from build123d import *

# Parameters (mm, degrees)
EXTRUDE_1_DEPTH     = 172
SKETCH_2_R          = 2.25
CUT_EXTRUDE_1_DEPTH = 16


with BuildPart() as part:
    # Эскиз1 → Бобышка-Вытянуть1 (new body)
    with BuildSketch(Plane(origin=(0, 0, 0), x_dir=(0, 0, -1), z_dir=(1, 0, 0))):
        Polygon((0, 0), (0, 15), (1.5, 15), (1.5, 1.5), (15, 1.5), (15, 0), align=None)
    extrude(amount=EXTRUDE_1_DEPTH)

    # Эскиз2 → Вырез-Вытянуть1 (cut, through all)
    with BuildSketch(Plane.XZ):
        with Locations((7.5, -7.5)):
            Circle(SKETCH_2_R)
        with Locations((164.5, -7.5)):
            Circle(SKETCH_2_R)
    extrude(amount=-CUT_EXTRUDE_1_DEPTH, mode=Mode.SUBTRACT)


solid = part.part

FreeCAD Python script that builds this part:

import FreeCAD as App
import Part
import Sketcher
from FreeCAD import Vector


def add_polygon(sketch, points):
    """Adds a closed chain of lines whose ends are joined by coincident constraints."""
    first, n = sketch.GeometryCount, len(points)
    for a, b in zip(points, points[1:] + points[:1]):
        sketch.addGeometry(Part.LineSegment(App.Vector(*a, 0), App.Vector(*b, 0)), False)
    for i in range(n):
        sketch.addConstraint(Sketcher.Constraint("Coincident", first + i, 2, first + (i + 1) % n, 1))

doc = App.newDocument("Part")
params = doc.addObject("Spreadsheet::Sheet", "Params")
for row, (alias, value) in enumerate([
    ("sketch1_width", "15 mm"),
    ("sketch1_width2", "1.5 mm"),
    ("pad1_length", "172 mm"),
    ("sketch2_diameter", "4.5 mm"),
], start=1):
    params.set(f"A{row}", alias)
    params.set(f"B{row}", "=" + value)
    params.setAlias(f"B{row}", alias)

body = doc.addObject("PartDesign::Body", "Body")

# Sketch on YZ plane
sketch1 = doc.addObject("Sketcher::SketchObject", "Sketch")
body.addObject(sketch1)
sketch1.AttachmentSupport = (doc.YZ_Plane, [""])
sketch1.MapMode = "FlatFace"
add_polygon(sketch1, [(15, 0), (0, 0), (0, -15), (1.5, -15), (1.5, -1.5), (15, -1.5)])  # lines 0-5
sketch1.addConstraint([
    Sketcher.Constraint("Horizontal", 0),
    Sketcher.Constraint("Vertical", 1),
    Sketcher.Constraint("Horizontal", 2),
    Sketcher.Constraint("Vertical", 3),
    Sketcher.Constraint("Horizontal", 4),
    Sketcher.Constraint("Vertical", 5),
    Sketcher.Constraint("Coincident", 0, 2, -1, 1),
    Sketcher.Constraint("Equal", 0, 1),
    Sketcher.Constraint("Equal", 4, 3),
    Sketcher.Constraint("DistanceX", 0, 2, 0, 1, 15.0),
    Sketcher.Constraint("DistanceX", 2, 1, 2, 2, 1.5),
])
sketch1.setExpression("Constraints[15]", "Params.sketch1_width")
sketch1.setExpression("Constraints[16]", "Params.sketch1_width2")
pad1 = doc.addObject("PartDesign::Pad", "Pad")
body.addObject(pad1)
pad1.Profile = sketch1
pad1.setExpression("Length", "Params.pad1_length")

# Sketch on XZ plane
sketch2 = doc.addObject("Sketcher::SketchObject", "Sketch001")
body.addObject(sketch2)
sketch2.AttachmentSupport = (doc.XZ_Plane, [""])
sketch2.MapMode = "FlatFace"
sketch2.addGeometry([
    Part.Circle(Vector(7.5, -7.5, 0), Vector(0, 0, 1), 2.25),
    Part.Circle(Vector(164.5, -7.5, 0), Vector(0, 0, 1), 2.25),
], False)
sketch2.addConstraint([
    Sketcher.Constraint("Equal", 0, 1),
    Sketcher.Constraint("Horizontal", 0, 3, 1, 3),
    Sketcher.Constraint("Diameter", 0, 4.5),
    Sketcher.Constraint("DistanceX", 0, 3, 1, 3, 157.0),
    Sketcher.Constraint("DistanceX", -1, 1, 0, 3, 7.5),
    Sketcher.Constraint("DistanceY", 0, 3, -1, 1, 7.5),
])
sketch2.setExpression("Constraints[2]", "Params.sketch2_diameter")
pocket1 = doc.addObject("PartDesign::Pocket", "Pocket")
body.addObject(pocket1)
pocket1.Profile = sketch2
pocket1.Type = "ThroughAll"

doc.recompute()
